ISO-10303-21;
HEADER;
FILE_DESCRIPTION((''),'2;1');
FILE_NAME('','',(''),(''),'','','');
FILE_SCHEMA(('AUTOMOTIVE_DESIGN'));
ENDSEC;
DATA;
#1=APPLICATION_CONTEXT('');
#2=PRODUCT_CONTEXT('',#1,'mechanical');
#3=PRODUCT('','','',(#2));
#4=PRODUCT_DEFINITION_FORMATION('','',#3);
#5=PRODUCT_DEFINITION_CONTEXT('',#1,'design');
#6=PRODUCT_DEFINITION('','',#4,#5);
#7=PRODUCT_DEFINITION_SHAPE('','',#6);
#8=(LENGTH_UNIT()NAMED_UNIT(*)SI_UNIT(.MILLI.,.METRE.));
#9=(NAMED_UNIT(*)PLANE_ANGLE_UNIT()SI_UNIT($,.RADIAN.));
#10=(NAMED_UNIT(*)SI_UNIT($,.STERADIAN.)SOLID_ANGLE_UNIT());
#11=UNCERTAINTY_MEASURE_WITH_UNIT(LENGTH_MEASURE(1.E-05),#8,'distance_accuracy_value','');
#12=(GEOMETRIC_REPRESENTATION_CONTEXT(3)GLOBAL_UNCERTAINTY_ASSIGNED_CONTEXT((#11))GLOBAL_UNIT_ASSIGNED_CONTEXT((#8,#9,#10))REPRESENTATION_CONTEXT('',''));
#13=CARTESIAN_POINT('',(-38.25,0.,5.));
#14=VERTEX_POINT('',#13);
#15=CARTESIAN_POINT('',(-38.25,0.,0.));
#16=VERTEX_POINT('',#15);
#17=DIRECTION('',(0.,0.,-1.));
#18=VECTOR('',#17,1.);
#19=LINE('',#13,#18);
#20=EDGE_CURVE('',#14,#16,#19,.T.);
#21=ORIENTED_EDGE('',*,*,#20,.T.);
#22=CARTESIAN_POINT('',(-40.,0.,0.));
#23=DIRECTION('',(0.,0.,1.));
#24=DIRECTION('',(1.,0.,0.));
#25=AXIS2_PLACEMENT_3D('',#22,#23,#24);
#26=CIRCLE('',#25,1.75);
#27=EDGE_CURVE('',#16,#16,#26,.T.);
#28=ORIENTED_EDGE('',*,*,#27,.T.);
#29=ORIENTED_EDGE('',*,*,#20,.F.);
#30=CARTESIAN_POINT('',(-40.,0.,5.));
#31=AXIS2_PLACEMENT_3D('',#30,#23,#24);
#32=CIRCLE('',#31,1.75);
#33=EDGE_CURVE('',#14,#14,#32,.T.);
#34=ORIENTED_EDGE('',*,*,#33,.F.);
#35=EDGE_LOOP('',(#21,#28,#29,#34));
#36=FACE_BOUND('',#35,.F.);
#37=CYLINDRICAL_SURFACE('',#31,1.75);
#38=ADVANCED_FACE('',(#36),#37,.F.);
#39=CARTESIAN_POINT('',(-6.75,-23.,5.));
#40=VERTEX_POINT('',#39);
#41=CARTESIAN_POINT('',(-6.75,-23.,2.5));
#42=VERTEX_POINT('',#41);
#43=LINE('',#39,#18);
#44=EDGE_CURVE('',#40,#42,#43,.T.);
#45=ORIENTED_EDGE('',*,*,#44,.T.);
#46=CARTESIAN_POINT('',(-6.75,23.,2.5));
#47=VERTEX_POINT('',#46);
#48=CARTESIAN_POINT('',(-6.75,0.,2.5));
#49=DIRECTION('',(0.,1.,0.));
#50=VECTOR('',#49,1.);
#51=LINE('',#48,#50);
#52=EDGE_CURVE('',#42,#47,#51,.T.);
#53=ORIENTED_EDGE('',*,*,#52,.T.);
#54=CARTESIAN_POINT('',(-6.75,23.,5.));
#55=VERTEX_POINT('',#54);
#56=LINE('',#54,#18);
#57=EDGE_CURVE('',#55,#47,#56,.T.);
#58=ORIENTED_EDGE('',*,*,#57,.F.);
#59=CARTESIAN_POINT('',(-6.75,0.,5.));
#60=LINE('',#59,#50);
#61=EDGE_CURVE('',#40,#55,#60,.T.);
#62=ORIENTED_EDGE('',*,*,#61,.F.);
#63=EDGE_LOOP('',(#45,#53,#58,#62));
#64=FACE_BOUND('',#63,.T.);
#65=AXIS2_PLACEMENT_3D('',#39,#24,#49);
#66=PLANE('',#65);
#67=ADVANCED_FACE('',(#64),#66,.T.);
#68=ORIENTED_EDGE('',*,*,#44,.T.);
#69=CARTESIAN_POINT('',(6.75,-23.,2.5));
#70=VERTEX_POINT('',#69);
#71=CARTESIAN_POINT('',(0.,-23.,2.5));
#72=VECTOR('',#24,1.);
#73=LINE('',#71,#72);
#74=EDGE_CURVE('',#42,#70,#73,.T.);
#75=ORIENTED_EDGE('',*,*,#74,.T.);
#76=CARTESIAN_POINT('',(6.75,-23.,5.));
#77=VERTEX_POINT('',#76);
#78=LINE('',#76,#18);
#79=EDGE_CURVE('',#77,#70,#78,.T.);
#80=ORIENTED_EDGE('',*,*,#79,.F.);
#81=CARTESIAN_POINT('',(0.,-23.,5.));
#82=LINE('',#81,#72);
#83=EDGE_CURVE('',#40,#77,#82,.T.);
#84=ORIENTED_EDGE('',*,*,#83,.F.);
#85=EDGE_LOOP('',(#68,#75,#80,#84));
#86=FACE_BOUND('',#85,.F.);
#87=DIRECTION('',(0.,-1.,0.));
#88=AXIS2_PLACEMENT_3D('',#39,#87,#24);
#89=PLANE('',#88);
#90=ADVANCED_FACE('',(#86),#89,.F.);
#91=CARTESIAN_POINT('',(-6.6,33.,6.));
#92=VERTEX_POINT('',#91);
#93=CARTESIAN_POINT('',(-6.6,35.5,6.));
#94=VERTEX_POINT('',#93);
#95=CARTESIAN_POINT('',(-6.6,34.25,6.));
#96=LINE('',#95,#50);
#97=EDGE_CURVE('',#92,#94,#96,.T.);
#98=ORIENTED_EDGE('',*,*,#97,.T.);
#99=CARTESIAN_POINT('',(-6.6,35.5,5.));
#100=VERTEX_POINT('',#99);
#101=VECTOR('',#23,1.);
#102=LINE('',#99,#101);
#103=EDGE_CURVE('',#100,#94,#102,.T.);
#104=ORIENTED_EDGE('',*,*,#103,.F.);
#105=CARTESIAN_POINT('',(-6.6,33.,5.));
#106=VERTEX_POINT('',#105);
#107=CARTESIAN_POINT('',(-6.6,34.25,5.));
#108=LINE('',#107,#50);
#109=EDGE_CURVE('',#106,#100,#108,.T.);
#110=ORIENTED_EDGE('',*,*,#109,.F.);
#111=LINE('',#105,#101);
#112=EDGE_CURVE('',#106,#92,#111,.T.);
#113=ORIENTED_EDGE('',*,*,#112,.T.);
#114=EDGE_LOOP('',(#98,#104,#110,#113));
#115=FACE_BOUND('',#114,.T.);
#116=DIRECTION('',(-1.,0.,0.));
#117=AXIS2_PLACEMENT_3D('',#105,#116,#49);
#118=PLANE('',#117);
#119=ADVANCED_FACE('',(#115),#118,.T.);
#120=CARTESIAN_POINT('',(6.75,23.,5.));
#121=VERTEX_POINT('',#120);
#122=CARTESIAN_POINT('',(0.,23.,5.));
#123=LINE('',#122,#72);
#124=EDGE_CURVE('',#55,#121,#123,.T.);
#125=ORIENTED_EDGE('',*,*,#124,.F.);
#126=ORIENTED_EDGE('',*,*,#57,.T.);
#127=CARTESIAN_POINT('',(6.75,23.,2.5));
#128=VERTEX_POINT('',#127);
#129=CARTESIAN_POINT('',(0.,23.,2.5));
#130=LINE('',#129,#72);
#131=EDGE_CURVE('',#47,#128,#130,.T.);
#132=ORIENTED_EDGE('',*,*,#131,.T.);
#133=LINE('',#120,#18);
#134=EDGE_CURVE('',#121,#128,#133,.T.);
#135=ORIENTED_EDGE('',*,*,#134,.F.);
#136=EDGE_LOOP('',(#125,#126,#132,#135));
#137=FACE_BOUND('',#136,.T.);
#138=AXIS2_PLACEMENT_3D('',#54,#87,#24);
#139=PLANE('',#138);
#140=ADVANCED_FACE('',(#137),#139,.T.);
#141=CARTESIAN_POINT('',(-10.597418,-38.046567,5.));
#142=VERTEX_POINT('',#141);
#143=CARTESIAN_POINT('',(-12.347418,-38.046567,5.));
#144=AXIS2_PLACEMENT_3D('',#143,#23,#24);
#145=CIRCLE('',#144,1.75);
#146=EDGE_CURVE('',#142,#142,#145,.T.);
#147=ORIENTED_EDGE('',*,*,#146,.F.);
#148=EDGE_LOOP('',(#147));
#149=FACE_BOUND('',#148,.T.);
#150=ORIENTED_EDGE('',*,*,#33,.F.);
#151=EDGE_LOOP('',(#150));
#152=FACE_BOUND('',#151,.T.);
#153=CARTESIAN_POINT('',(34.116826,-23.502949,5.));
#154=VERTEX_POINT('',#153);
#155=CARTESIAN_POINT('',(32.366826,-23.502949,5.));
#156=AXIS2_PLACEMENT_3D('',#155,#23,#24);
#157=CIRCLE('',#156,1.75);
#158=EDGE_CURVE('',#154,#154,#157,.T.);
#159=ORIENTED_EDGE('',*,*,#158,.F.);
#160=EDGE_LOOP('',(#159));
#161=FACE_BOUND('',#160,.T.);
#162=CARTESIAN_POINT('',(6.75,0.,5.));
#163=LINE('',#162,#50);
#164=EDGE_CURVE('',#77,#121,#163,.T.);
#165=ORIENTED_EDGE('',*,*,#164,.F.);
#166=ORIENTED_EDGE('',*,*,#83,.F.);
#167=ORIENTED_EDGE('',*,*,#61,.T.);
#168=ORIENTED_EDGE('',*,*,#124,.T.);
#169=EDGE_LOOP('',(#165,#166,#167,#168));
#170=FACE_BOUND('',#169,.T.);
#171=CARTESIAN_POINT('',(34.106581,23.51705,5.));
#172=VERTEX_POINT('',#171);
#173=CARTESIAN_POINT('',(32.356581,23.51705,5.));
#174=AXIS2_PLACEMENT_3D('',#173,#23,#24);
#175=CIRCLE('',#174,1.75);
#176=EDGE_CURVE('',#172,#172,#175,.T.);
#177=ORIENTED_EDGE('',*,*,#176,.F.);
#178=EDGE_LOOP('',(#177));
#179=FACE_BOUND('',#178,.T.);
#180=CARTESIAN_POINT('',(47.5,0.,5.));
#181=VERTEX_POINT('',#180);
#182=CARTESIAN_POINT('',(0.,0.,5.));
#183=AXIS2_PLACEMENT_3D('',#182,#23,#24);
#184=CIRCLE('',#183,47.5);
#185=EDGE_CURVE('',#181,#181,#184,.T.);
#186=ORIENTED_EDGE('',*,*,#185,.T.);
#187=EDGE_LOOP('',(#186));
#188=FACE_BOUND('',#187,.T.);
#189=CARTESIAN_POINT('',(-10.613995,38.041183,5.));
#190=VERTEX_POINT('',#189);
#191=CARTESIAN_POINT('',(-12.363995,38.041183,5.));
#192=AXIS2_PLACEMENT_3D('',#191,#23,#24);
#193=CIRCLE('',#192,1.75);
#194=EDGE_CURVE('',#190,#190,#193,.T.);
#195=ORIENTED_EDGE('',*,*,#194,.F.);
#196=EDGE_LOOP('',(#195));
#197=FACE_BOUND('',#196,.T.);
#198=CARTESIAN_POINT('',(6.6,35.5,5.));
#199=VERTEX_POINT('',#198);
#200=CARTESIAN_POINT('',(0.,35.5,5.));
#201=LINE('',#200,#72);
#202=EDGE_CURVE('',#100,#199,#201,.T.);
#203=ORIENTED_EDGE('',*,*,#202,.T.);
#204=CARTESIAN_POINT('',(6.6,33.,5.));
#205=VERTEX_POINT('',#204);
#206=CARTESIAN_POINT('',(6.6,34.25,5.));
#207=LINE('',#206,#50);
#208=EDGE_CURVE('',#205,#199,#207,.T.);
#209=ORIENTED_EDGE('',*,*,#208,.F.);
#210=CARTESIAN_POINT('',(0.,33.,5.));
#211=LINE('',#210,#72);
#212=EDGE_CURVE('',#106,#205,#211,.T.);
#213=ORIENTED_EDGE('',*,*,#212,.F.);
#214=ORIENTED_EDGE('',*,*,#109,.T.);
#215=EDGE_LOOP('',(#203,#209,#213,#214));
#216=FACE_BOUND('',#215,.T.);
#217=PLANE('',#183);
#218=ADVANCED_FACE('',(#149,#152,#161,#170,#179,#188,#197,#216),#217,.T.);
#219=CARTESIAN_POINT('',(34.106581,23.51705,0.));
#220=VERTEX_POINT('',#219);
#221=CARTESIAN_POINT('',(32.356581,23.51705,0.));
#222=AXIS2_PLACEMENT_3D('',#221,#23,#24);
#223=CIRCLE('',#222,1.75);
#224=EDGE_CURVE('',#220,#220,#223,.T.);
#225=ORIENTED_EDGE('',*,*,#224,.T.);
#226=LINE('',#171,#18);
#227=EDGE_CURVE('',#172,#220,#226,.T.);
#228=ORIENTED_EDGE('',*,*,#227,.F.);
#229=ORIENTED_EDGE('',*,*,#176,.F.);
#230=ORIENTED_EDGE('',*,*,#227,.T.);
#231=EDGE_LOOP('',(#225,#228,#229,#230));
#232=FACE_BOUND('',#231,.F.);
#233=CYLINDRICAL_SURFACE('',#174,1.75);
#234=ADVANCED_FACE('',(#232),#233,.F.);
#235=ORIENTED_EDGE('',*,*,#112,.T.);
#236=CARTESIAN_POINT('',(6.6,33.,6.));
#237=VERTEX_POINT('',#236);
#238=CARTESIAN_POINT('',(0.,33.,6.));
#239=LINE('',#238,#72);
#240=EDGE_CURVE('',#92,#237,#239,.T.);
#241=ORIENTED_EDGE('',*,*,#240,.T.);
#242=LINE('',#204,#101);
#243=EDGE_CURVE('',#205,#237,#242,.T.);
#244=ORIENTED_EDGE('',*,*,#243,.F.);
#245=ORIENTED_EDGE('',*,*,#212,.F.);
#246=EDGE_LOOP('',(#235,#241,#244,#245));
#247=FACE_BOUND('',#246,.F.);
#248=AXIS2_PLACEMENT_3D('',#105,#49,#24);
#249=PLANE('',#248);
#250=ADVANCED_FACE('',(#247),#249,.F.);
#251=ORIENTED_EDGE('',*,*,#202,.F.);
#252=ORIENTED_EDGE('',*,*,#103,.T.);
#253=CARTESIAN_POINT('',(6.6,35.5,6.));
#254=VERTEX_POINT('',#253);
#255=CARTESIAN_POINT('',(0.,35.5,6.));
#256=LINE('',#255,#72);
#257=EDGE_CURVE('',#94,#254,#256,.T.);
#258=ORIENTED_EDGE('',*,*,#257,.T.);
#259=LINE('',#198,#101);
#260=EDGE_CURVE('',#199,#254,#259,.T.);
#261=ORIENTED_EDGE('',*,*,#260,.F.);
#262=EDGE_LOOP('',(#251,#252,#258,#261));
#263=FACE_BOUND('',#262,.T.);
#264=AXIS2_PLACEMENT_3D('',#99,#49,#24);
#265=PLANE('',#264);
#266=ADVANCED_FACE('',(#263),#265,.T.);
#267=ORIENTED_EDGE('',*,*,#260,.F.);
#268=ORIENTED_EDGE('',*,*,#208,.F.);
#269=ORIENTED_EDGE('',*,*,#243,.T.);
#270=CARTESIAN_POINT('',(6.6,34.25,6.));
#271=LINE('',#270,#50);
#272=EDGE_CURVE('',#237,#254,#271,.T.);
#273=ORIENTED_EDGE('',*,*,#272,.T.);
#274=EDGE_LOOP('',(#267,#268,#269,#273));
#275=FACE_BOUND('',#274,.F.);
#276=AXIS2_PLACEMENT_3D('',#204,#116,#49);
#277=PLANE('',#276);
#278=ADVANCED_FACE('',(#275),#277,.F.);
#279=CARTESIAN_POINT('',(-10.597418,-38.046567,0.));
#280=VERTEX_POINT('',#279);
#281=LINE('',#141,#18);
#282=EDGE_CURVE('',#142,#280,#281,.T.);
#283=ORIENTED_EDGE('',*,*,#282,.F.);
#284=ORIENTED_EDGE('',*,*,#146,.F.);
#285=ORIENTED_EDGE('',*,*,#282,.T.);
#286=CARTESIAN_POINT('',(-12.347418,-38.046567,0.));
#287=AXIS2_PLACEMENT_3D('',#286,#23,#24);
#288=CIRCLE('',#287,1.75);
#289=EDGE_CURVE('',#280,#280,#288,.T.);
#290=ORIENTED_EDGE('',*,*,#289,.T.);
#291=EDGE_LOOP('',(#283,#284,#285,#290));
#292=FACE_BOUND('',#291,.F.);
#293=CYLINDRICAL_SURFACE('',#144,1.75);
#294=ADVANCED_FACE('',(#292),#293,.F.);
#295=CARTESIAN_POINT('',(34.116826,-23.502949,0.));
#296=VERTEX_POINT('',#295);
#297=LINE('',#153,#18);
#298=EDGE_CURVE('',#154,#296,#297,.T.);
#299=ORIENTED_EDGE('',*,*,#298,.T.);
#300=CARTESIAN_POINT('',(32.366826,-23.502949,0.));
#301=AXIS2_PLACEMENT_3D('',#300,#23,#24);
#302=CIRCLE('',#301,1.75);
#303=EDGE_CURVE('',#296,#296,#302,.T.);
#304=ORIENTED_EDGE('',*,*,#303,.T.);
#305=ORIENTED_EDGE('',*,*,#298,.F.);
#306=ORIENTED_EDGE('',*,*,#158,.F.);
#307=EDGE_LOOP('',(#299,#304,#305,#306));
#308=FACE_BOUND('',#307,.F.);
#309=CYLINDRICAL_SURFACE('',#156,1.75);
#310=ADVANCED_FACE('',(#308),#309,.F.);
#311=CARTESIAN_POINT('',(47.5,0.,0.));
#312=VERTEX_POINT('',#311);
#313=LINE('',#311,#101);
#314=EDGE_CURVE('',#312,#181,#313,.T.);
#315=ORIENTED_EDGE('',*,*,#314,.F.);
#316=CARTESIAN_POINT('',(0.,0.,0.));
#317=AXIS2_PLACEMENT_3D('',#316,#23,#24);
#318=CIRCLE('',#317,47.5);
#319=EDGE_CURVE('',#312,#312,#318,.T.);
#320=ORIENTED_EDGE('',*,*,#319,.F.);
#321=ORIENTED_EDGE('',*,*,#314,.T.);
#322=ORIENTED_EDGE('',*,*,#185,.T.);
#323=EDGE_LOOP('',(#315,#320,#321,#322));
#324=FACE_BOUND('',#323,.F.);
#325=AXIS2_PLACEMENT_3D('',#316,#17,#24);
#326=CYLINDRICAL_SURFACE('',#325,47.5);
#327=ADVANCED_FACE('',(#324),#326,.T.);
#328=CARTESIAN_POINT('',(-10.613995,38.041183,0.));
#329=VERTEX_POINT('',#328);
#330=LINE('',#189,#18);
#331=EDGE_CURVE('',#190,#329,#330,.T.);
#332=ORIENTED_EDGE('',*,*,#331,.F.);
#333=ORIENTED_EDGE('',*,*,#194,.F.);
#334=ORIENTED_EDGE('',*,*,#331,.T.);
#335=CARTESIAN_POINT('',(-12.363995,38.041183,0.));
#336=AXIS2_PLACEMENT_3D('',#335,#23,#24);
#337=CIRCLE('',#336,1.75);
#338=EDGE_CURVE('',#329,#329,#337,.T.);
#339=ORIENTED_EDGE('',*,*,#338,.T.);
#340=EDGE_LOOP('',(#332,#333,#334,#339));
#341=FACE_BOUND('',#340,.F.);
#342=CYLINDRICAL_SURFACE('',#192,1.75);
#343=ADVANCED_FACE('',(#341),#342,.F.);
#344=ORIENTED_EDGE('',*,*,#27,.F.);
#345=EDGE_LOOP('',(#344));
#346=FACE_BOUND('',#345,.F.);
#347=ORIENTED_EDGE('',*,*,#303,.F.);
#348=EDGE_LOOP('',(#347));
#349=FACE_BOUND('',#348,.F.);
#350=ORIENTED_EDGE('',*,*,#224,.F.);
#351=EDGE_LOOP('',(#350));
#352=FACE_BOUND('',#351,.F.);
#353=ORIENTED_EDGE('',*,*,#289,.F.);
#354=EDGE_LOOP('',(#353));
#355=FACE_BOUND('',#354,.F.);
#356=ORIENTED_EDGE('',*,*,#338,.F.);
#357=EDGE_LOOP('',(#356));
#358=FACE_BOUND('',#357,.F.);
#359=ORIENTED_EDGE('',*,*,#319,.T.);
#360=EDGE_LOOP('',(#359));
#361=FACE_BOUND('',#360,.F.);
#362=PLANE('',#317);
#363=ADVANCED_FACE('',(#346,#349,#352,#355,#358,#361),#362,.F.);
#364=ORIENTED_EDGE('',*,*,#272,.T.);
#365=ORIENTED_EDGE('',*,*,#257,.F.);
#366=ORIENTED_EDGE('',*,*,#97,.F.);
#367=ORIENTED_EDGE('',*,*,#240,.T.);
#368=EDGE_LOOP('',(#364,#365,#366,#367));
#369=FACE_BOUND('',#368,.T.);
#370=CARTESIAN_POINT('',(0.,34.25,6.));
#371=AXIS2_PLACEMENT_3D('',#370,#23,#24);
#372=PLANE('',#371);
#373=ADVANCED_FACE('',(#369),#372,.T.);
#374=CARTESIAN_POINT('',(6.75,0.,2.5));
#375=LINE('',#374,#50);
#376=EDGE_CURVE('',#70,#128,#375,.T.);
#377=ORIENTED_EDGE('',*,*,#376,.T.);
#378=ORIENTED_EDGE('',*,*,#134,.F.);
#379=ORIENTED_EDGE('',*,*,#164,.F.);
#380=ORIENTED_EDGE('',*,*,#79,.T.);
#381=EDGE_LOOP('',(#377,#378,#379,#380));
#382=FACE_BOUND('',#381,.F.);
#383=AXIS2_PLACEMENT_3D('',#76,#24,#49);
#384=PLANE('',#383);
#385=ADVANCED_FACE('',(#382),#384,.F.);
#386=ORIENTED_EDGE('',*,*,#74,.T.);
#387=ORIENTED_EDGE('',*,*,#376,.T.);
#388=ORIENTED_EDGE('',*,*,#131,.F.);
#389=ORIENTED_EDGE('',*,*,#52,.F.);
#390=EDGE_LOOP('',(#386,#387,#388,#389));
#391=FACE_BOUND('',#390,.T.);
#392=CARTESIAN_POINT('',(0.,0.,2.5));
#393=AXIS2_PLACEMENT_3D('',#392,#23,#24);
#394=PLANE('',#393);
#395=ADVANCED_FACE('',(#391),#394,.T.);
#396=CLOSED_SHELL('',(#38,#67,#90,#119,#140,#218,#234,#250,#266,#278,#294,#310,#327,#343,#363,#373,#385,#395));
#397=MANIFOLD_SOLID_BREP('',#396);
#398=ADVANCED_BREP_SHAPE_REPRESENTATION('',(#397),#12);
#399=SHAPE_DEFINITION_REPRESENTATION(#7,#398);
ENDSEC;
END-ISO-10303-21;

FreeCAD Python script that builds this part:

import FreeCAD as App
import Part
import Sketcher

V = App.Vector

doc = App.newDocument("Part")
body = doc.addObject("PartDesign::Body", "Body")

# Sketch on XY plane
sketch1 = doc.addObject("Sketcher::SketchObject", "Sketch")
body.addObject(sketch1)
sketch1.AttachmentSupport = (doc.XY_Plane, [""])
sketch1.MapMode = "FlatFace"
sketch1.addGeometry(Part.Circle(V(0, 0, 0), V(0, 0, 1), 48), False)
sketch1.addConstraint(Sketcher.Constraint("Coincident", 0, 3, -1, 1))
sketch1.addConstraint(Sketcher.Constraint("Diameter", 0, 95.0))
pad1 = doc.addObject("PartDesign::Pad", "Pad")
body.addObject(pad1)
pad1.Profile = sketch1
pad1.Length = 5

# Sketch on XY plane
sketch2 = doc.addObject("Sketcher::SketchObject", "Sketch001")
body.addObject(sketch2)
sketch2.AttachmentSupport = (doc.XY_Plane, [""])
sketch2.MapMode = "FlatFace"
sketch2.AttachmentOffset = App.Placement(V(0, 0, 5), App.Rotation())
sketch2.addGeometry(Part.LineSegment(V(-7, 23, 0), V(-7, -23, 0)), False)
sketch2.addGeometry(Part.LineSegment(V(-7, -23, 0), V(7, -23, 0)), False)
sketch2.addGeometry(Part.LineSegment(V(7, -23, 0), V(7, 23, 0)), False)
sketch2.addGeometry(Part.LineSegment(V(7, 23, 0), V(-7, 23, 0)), False)
sketch2.addConstraint(Sketcher.Constraint("Coincident", 0, 2, 1, 1))
sketch2.addConstraint(Sketcher.Constraint("Coincident", 1, 2, 2, 1))
sketch2.addConstraint(Sketcher.Constraint("Coincident", 2, 2, 3, 1))
sketch2.addConstraint(Sketcher.Constraint("Coincident", 3, 2, 0, 1))
sketch2.addConstraint(Sketcher.Constraint("Vertical", 0))
sketch2.addConstraint(Sketcher.Constraint("Horizontal", 1))
sketch2.addConstraint(Sketcher.Constraint("Vertical", 2))
sketch2.addConstraint(Sketcher.Constraint("Horizontal", 3))
sketch2.addConstraint(Sketcher.Constraint("Symmetric", 0, 2, 2, 2, -1, 1))
sketch2.addConstraint(Sketcher.Constraint("DistanceY", 0, 2, 0, 1, 46.0))
sketch2.addConstraint(Sketcher.Constraint("DistanceX", 1, 1, 1, 2, 13.5))
pocket1 = doc.addObject("PartDesign::Pocket", "Pocket")
body.addObject(pocket1)
pocket1.Profile = sketch2
pocket1.Length = 2.5

# Sketch on XY plane
sketch3 = doc.addObject("Sketcher::SketchObject", "Sketch002")
body.addObject(sketch3)
sketch3.AttachmentSupport = (doc.XY_Plane, [""])
sketch3.MapMode = "FlatFace"
sketch3.AttachmentOffset = App.Placement(V(0, 0, 5), App.Rotation())
sketch3.addGeometry(Part.Circle(V(-40, 0, 0), V(0, 0, 1), 1.8), False)
sketch3.addGeometry(Part.Circle(V(-12.4, 38, 0), V(0, 0, 1), 1.8), False)
sketch3.addGeometry(Part.Circle(V(32.4, 23.5, 0), V(0, 0, 1), 1.8), False)
sketch3.addGeometry(Part.Circle(V(32.4, -23.5, 0), V(0, 0, 1), 1.8), False)
sketch3.addGeometry(Part.Circle(V(-12.3, -38, 0), V(0, 0, 1), 1.8), False)
sketch3.addConstraint(Sketcher.Constraint("Equal", 0, 1))
sketch3.addConstraint(Sketcher.Constraint("Equal", 1, 2))
sketch3.addConstraint(Sketcher.Constraint("Equal", 2, 3))
sketch3.addConstraint(Sketcher.Constraint("Equal", 3, 4))
sketch3.addConstraint(Sketcher.Constraint("PointOnObject", 0, 3, -1))
sketch3.addConstraint(Sketcher.Constraint("Diameter", 0, 3.5))
sketch3.addConstraint(Sketcher.Constraint("DistanceX", 0, 3, -1, 1, 40.0))
sketch3.addConstraint(Sketcher.Constraint("DistanceY", 3, 3, 2, 3, 47.019999))
sketch3.addConstraint(Sketcher.Constraint("DistanceX", 4, 3, 2, 3, 44.703999))
sketch3.addConstraint(Sketcher.Constraint("DistanceX", -1, 1, 2, 3, 32.356581))
sketch3.addConstraint(Sketcher.Constraint("DistanceY", -1, 1, 2, 3, 23.51705))
sketch3.addConstraint(Sketcher.Constraint("DistanceX", 1, 3, 3, 3, 44.730821))
sketch3.addConstraint(Sketcher.Constraint("DistanceY", 3, 3, 1, 3, 61.544132))
sketch3.addConstraint(Sketcher.Constraint("DistanceY", 4, 3, 3, 3, 14.543618))
sketch3.addConstraint(Sketcher.Constraint("DistanceX", 1, 3, -1, 1, 12.363995))
pocket2 = doc.addObject("PartDesign::Pocket", "Pocket001")
body.addObject(pocket2)
pocket2.Profile = sketch3
pocket2.Length = 5

# Sketch on XY plane
sketch4 = doc.addObject("Sketcher::SketchObject", "Sketch003")
body.addObject(sketch4)
sketch4.AttachmentSupport = (doc.XY_Plane, [""])
sketch4.MapMode = "FlatFace"
sketch4.AttachmentOffset = App.Placement(V(0, 0, 5), App.Rotation())
sketch4.addGeometry(Part.LineSegment(V(-6.6, 35.5, 0), V(-6.6, 33, 0)), False)
sketch4.addGeometry(Part.LineSegment(V(-6.6, 33, 0), V(6.6, 33, 0)), False)
sketch4.addGeometry(Part.LineSegment(V(6.6, 33, 0), V(6.6, 35.5, 0)), False)
sketch4.addGeometry(Part.LineSegment(V(6.6, 35.5, 0), V(-6.6, 35.5, 0)), False)
sketch4.addConstraint(Sketcher.Constraint("Coincident", 0, 2, 1, 1))
sketch4.addConstraint(Sketcher.Constraint("Coincident", 1, 2, 2, 1))
sketch4.addConstraint(Sketcher.Constraint("Coincident", 2, 2, 3, 1))
sketch4.addConstraint(Sketcher.Constraint("Coincident", 3, 2, 0, 1))
sketch4.addConstraint(Sketcher.Constraint("Vertical", 0))
sketch4.addConstraint(Sketcher.Constraint("Horizontal", 1))
sketch4.addConstraint(Sketcher.Constraint("Vertical", 2))
sketch4.addConstraint(Sketcher.Constraint("Horizontal", 3))
sketch4.addConstraint(Sketcher.Constraint("DistanceX", 1, 1, 1, 2, 13.2))
sketch4.addConstraint(Sketcher.Constraint("DistanceY", 0, 2, 0, 1, 2.5))
sketch4.addConstraint(Sketcher.Constraint("DistanceY", -1, 1, 0, 2, 33.0))
sketch4.addConstraint(Sketcher.Constraint("DistanceX", 0, 2, -1, 1, 6.6))
pad2 = doc.addObject("PartDesign::Pad", "Pad001")
body.addObject(pad2)
pad2.Profile = sketch4
pad2.Length = 1

doc.recompute()
